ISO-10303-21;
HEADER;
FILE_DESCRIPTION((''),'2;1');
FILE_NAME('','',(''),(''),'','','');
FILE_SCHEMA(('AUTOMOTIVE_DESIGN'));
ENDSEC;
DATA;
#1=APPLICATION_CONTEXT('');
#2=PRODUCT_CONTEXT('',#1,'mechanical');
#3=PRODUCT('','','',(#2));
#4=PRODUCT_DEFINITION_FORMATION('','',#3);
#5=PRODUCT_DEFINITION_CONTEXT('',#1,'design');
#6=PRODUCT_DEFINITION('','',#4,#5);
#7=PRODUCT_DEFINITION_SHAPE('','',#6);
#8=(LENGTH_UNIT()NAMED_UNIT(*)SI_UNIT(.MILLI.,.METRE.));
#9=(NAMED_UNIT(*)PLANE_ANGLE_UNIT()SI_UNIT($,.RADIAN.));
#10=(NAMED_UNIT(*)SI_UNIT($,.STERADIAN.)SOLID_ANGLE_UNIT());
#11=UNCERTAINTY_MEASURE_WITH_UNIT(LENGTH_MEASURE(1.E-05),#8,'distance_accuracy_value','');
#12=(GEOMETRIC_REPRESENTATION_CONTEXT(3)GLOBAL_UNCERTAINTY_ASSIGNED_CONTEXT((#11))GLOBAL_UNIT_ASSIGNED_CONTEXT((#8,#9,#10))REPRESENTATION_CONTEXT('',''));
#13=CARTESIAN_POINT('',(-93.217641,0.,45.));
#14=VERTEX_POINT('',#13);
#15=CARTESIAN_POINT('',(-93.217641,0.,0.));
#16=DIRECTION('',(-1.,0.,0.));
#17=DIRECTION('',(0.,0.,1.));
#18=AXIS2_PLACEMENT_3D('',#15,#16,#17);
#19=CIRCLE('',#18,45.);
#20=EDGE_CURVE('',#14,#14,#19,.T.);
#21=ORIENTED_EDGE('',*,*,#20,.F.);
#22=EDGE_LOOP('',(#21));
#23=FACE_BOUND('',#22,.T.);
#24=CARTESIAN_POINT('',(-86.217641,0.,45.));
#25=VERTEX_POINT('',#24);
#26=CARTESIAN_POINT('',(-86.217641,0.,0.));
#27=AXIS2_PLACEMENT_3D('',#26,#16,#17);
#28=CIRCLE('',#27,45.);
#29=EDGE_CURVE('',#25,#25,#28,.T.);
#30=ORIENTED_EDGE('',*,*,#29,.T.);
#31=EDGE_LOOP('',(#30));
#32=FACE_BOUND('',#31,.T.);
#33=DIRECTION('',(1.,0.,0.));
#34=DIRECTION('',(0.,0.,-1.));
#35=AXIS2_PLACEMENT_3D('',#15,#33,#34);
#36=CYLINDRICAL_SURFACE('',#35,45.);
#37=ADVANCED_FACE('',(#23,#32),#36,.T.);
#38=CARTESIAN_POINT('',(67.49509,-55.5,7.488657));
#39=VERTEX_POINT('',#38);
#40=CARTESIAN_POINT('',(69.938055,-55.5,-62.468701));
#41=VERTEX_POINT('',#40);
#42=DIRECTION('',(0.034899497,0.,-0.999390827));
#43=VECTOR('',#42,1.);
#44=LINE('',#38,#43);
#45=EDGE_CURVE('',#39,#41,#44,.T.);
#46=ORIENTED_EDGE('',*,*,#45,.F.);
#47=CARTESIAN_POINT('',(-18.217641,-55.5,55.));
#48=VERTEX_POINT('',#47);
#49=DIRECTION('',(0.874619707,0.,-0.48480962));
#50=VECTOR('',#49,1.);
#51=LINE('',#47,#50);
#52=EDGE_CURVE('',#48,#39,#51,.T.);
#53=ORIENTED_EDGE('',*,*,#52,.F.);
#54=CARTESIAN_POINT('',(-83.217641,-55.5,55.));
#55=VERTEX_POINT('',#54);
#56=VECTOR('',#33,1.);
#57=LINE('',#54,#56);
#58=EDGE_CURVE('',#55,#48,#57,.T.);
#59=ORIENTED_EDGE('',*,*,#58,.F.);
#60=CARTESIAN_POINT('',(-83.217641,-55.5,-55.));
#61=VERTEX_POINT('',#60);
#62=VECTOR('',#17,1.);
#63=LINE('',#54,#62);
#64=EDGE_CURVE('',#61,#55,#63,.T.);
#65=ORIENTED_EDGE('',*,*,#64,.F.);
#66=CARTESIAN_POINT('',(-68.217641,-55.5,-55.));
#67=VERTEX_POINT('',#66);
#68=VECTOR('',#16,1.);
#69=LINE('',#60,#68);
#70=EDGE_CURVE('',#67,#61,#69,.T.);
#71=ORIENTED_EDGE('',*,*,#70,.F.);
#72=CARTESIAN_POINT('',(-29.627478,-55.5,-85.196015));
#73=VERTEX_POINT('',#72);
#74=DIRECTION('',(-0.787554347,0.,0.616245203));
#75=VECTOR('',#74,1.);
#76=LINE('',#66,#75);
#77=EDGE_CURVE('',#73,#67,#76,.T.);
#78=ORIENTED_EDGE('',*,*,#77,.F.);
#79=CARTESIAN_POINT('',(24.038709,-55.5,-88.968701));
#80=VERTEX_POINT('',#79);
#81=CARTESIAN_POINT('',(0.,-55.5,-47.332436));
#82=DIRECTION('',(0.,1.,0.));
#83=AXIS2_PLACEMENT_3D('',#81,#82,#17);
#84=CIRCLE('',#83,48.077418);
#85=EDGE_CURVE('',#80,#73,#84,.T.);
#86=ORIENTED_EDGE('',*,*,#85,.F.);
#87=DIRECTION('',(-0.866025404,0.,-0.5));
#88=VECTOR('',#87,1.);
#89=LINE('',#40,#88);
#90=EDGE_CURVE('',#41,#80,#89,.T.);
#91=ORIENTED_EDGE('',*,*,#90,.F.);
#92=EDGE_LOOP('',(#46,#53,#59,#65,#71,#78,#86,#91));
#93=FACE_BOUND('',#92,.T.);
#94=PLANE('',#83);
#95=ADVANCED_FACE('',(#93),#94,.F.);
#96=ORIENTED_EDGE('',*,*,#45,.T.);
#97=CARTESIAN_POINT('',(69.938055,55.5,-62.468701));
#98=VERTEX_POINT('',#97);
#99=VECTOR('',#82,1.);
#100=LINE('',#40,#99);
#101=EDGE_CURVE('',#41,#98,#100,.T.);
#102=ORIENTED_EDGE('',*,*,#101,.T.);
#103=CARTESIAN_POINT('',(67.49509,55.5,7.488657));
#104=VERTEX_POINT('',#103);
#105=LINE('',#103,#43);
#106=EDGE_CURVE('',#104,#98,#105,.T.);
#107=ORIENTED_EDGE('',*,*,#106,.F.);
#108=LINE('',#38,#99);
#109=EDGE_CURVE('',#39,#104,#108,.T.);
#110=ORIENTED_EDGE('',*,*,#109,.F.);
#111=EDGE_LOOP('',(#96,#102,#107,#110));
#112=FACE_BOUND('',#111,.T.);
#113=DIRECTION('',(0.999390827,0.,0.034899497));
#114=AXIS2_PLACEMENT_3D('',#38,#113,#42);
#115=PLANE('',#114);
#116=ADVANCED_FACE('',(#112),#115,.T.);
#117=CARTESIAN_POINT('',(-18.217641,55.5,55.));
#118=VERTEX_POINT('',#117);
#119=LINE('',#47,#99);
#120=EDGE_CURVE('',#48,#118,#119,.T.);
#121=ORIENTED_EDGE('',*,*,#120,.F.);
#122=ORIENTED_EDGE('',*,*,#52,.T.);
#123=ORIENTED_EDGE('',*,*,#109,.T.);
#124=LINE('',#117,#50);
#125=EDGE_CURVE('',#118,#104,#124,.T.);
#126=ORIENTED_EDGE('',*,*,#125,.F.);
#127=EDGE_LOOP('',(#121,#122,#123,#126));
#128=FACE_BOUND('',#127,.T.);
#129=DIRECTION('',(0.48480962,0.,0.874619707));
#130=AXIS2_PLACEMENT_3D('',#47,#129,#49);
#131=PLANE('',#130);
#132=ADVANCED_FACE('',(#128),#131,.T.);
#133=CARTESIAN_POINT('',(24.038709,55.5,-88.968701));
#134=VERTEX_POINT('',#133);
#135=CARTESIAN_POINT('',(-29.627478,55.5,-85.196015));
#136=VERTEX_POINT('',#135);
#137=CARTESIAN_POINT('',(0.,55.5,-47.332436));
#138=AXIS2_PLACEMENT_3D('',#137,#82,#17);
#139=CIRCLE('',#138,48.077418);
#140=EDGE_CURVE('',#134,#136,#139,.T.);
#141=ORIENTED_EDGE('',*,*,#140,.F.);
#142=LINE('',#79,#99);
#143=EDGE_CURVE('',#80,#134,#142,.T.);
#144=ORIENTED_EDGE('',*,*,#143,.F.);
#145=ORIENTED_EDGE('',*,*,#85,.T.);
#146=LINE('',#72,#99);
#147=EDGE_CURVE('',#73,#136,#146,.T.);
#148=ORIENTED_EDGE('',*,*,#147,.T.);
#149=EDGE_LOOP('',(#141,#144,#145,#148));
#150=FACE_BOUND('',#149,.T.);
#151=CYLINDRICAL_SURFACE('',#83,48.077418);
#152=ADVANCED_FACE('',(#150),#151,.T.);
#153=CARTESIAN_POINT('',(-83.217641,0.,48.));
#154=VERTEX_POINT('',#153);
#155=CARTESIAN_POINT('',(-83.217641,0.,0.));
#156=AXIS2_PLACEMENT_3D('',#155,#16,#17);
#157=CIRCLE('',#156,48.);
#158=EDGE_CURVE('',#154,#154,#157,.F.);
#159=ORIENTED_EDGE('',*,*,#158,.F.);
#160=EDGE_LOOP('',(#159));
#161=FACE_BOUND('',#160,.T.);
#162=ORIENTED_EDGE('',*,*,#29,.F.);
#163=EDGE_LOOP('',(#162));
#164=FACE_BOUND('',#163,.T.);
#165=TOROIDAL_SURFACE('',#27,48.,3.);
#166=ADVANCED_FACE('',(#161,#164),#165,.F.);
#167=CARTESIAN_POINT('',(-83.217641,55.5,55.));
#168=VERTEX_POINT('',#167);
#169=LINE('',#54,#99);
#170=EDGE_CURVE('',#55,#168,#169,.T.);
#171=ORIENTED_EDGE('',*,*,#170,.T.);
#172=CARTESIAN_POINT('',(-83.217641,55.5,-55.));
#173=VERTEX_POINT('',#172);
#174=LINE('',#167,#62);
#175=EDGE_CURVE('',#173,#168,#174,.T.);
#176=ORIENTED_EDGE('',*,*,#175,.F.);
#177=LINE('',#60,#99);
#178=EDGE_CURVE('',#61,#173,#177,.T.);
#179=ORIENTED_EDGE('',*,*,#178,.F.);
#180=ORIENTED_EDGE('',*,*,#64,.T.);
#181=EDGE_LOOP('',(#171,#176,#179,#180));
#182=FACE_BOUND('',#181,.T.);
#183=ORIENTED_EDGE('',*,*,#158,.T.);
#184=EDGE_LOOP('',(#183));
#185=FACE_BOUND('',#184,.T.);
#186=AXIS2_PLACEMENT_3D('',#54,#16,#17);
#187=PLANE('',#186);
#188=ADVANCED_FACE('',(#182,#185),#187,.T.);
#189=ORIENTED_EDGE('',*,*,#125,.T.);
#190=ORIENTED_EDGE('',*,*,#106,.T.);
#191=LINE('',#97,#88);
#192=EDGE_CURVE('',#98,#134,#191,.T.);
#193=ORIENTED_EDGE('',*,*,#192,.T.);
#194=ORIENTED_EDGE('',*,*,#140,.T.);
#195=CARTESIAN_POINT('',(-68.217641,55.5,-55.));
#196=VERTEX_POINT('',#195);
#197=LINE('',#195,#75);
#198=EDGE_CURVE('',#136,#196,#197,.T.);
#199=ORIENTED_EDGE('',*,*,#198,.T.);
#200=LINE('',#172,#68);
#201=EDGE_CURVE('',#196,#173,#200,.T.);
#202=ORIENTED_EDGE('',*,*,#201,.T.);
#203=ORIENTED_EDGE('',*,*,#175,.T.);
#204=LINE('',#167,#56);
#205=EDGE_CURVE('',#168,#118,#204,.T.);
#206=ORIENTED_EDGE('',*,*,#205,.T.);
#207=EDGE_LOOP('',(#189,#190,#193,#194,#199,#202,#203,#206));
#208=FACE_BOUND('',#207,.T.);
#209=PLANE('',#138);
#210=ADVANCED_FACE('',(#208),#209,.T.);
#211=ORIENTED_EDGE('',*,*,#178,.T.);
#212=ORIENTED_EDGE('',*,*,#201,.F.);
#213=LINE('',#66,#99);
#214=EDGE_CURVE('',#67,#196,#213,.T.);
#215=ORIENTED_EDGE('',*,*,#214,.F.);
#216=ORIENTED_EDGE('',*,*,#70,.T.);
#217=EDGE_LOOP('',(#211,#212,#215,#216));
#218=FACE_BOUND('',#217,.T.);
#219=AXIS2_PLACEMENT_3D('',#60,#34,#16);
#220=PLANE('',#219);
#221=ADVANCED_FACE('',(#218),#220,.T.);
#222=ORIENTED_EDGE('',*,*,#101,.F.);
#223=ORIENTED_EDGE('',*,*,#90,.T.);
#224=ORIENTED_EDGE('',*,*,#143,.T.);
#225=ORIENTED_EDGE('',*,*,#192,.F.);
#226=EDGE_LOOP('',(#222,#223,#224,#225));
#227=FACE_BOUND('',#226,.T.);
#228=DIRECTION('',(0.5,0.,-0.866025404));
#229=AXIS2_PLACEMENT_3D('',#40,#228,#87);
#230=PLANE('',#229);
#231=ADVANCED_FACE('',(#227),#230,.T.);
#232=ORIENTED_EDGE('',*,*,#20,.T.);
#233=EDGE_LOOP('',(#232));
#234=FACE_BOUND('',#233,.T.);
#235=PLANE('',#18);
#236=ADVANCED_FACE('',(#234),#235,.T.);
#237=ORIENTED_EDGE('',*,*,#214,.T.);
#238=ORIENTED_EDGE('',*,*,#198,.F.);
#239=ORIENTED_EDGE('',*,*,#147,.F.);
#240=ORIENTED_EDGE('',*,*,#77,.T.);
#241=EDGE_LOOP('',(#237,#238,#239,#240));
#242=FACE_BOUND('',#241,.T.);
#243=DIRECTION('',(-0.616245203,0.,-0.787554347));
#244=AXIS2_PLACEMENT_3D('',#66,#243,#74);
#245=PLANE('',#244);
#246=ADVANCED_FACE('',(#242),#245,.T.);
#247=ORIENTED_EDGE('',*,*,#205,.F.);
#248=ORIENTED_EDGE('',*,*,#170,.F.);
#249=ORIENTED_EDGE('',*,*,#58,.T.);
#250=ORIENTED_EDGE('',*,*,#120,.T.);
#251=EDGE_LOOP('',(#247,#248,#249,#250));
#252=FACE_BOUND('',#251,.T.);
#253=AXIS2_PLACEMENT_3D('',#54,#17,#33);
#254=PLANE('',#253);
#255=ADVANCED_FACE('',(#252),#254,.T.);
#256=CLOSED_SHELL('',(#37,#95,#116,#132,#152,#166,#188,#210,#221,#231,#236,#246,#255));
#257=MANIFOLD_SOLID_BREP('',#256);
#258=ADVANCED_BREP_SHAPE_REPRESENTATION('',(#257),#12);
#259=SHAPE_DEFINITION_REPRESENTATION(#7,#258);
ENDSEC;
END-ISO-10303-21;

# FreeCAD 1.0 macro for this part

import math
import FreeCAD as App
import Part
import Sketcher
from FreeCAD import Vector
Q = App.Units.Quantity


def edges_at(feature, points):
    """Names of the edges that pass closest to the given points."""
    edges = feature.Shape.Edges
    near = lambda p: min(range(len(edges)), key=lambda i: edges[i].distToShape(Part.Vertex(*p))[0])
    return sorted({f"Edge{near(p) + 1}" for p in points})

doc = App.newDocument("Part")
body = doc.addObject("PartDesign::Body", "Body")

sketch1 = body.newObject("Sketcher::SketchObject", "Sketch")
sketch1.AttachmentSupport = (doc.getObject("XZ_Plane"), [""])
sketch1.MapMode = "FlatFace"
sketch1.addGeometry([
    Part.LineSegment(Vector(0, 0, 0), Vector(65, 0, 0)),
    Part.LineSegment(Vector(65, 0, 0), Vector(151, -48, 0)),
    Part.LineSegment(Vector(151, -48, 0), Vector(153, -117, 0)),
    Part.LineSegment(Vector(153, -117, 0), Vector(107, -144, 0)),
    Part.ArcOfCircle(Part.Circle(Vector(83, -102, 0), Vector(0, 0, 1), 48), math.radians(-128), math.radians(-60)),
    Part.LineSegment(Vector(54, -140, 0), Vector(15, -110, 0)),
    Part.LineSegment(Vector(15, -110, 0), Vector(0, -110, 0)),
    Part.LineSegment(Vector(0, -110, 0), Vector(0, 0, 0)),
], False)
sketch1.addConstraint([
    Sketcher.Constraint("Coincident", 0, 2, 1, 1),
    Sketcher.Constraint("Coincident", 1, 2, 2, 1),
    Sketcher.Constraint("Coincident", 2, 2, 3, 1),
    Sketcher.Constraint("Tangent", 3, 2, 4, 2),
    Sketcher.Constraint("Tangent", 4, 1, 5, 1),
    Sketcher.Constraint("Coincident", 5, 2, 6, 1),
    Sketcher.Constraint("Coincident", 6, 2, 7, 1),
    Sketcher.Constraint("Coincident", 7, 2, 0, 1),
    Sketcher.Constraint("Horizontal", 0),
    Sketcher.Constraint("Horizontal", 6),
    Sketcher.Constraint("Vertical", 7),
    Sketcher.Constraint("Coincident", 7, 2, -1, 1),
    Sketcher.Constraint("DistanceX", 0, 1, 0, 2, Q("65 mm")),
    Sketcher.Constraint("DistanceX", 6, 2, 6, 1, Q("15 mm")),
    Sketcher.Constraint("DistanceY", 7, 1, 7, 2, Q("110 mm")),
    Sketcher.Constraint("Angle", 1, Q("-29 deg")),
    Sketcher.Constraint("Angle", 2, Q("-88 deg")),
    Sketcher.Constraint("Angle", 3, Q("-150 deg")),
    Sketcher.Constraint("Distance", 1, Q("98 mm")),
    Sketcher.Constraint("Distance", 2, Q("70 mm")),
    Sketcher.Constraint("Distance", 3, Q("53 mm")),
    Sketcher.Constraint("Distance", 5, Q("49 mm")),
])
pad1 = body.newObject("PartDesign::Pad", "Pad")
pad1.Profile = sketch1
pad1.Type = "TwoLengths"
pad1.Length = 55.5
pad1.Length2 = 55.5
pad1.Reversed = True

sketch2 = body.newObject("Sketcher::SketchObject", "Sketch001")
sketch2.AttachmentSupport = (doc.getObject("YZ_Plane"), [""])
sketch2.MapMode = "FlatFace"
sketch2.addGeometry(Part.Circle(Vector(0, -55, 0), Vector(0, 0, 1), 45), False)
sketch2.addConstraint([
    Sketcher.Constraint("PointOnObject", 0, 3, -2),
    Sketcher.Constraint("Diameter", 0, Q("90 mm")),
    Sketcher.Constraint("DistanceY", 0, 3, -1, 1, Q("55 mm")),
])
pad2 = body.newObject("PartDesign::Pad", "Pad001")
pad2.Profile = sketch2
pad2.Length = 10
pad2.Reversed = True
doc.recompute()

fillet = body.newObject("PartDesign::Fillet", "Fillet")
fillet.Base = (pad2, edges_at(pad2, [(0, 0, -100)]))
fillet.Radius = 3
body2 = doc.addObject("PartDesign::Body", "Body001")
doc.recompute()

body.Placement = App.Placement(Vector(-83.217641, 0, 55), App.Rotation(Vector(0, 0, 1), 0))
boolean = body2.newObject("PartDesign::Boolean", "Boolean")
boolean.Type = "Fuse"
boolean.addObjects([body])

doc.recompute()
